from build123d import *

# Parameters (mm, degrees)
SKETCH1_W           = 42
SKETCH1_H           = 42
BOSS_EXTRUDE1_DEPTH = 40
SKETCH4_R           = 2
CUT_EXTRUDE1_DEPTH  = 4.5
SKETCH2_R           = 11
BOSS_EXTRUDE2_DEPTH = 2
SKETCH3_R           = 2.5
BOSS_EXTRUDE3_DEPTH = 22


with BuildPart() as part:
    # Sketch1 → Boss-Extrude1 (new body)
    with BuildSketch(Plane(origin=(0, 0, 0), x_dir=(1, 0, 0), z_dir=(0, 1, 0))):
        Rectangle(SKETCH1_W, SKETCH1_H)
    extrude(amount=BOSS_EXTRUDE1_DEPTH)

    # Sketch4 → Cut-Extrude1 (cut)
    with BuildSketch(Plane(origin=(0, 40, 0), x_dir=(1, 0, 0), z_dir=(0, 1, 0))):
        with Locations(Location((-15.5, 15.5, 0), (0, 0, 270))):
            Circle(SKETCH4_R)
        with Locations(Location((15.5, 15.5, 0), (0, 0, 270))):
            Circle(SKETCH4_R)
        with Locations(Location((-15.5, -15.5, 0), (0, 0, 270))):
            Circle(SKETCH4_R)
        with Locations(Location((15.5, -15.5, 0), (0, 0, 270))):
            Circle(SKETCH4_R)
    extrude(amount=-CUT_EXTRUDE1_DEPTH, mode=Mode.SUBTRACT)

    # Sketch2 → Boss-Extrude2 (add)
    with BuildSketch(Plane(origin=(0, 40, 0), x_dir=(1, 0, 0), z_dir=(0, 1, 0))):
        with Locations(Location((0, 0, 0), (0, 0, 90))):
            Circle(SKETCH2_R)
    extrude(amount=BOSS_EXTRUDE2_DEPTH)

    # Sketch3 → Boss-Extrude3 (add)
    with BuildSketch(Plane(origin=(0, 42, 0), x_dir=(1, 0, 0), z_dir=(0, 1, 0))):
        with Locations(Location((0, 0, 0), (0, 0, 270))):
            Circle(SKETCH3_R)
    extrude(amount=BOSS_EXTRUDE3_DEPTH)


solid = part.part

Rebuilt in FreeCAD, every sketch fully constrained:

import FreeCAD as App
import Part
import Sketcher
Q = App.Units.Quantity

doc = App.newDocument("Part")
body = doc.addObject("PartDesign::Body", "Body")

sketch1 = doc.addObject("Sketcher::SketchObject", "Sketch")
body.addObject(sketch1)
sketch1.AttachmentSupport = (doc.XZ_Plane, [""])
sketch1.MapMode = "FlatFace"
sketch1.addGeometry(Part.LineSegment(App.Vector(-21, -21, 0), App.Vector(-21, 21, 0)), False)
sketch1.addGeometry(Part.LineSegment(App.Vector(-21, 21, 0), App.Vector(21, 21, 0)), False)
sketch1.addGeometry(Part.LineSegment(App.Vector(21, 21, 0), App.Vector(21, -21, 0)), False)
sketch1.addGeometry(Part.LineSegment(App.Vector(21, -21, 0), App.Vector(-21, -21, 0)), False)
sketch1.addConstraint(Sketcher.Constraint("Coincident", 0, 2, 1, 1))
sketch1.addConstraint(Sketcher.Constraint("Coincident", 1, 2, 2, 1))
sketch1.addConstraint(Sketcher.Constraint("Coincident", 2, 2, 3, 1))
sketch1.addConstraint(Sketcher.Constraint("Coincident", 3, 2, 0, 1))
sketch1.addConstraint(Sketcher.Constraint("Vertical", 0))
sketch1.addConstraint(Sketcher.Constraint("Horizontal", 1))
sketch1.addConstraint(Sketcher.Constraint("Vertical", 2))
sketch1.addConstraint(Sketcher.Constraint("Horizontal", 3))
sketch1.addConstraint(Sketcher.Constraint("Symmetric", 0, 2, 2, 2, -1, 1))
sketch1.addConstraint(Sketcher.Constraint("Equal", 3, 0))
sketch1.addConstraint(Sketcher.Constraint("DistanceX", 1, 1, 1, 2, Q("42 mm")))
pad1 = doc.addObject("PartDesign::Pad", "Pad")
body.addObject(pad1)
pad1.Profile = sketch1
pad1.Length = 40
pad1.Reversed = True

sketch2 = doc.addObject("Sketcher::SketchObject", "Sketch001")
body.addObject(sketch2)
sketch2.AttachmentSupport = (doc.XZ_Plane, [""])
sketch2.MapMode = "FlatFace"
sketch2.AttachmentOffset = App.Placement(App.Vector(0, 0, -40), App.Rotation())
sketch2.addGeometry(Part.Circle(App.Vector(-15.5, -15.5, 0), App.Vector(0, 0, 1), 2), False)
sketch2.addGeometry(Part.Circle(App.Vector(15.5, -15.5, 0), App.Vector(0, 0, 1), 2), False)
sketch2.addGeometry(Part.Circle(App.Vector(-15.5, 15.5, 0), App.Vector(0, 0, 1), 2), False)
sketch2.addGeometry(Part.Circle(App.Vector(15.5, 15.5, 0), App.Vector(0, 0, 1), 2), False)
sketch2.addConstraint(Sketcher.Constraint("Equal", 0, 1))
sketch2.addConstraint(Sketcher.Constraint("Equal", 1, 2))
sketch2.addConstraint(Sketcher.Constraint("Equal", 2, 3))
sketch2.addConstraint(Sketcher.Constraint("Symmetric", 1, 3, 2, 3, -1, 1))
sketch2.addConstraint(Sketcher.Constraint("Symmetric", 0, 3, 3, 3, -1, 1))
sketch2.addConstraint(Sketcher.Constraint("Symmetric", 0, 3, 1, 3, -2))
sketch2.addConstraint(Sketcher.Constraint("Diameter", 0, Q("4 mm")))
sketch2.addConstraint(Sketcher.Constraint("DistanceX", 0, 3, 1, 3, Q("31 mm")))
sketch2.addConstraint(Sketcher.Constraint("DistanceY", 0, 3, 2, 3, Q("31 mm")))
pocket1 = doc.addObject("PartDesign::Pocket", "Pocket")
body.addObject(pocket1)
pocket1.Profile = sketch2
pocket1.Length = 4.5
pocket1.Reversed = True

sketch3 = doc.addObject("Sketcher::SketchObject", "Sketch002")
body.addObject(sketch3)
sketch3.AttachmentSupport = (doc.XZ_Plane, [""])
sketch3.MapMode = "FlatFace"
sketch3.AttachmentOffset = App.Placement(App.Vector(0, 0, -40), App.Rotation())
sketch3.addGeometry(Part.Circle(App.Vector(0, 0, 0), App.Vector(0, 0, 1), 11), False)
sketch3.addConstraint(Sketcher.Constraint("Coincident", 0, 3, -1, 1))
sketch3.addConstraint(Sketcher.Constraint("Diameter", 0, Q("22 mm")))
pad2 = doc.addObject("PartDesign::Pad", "Pad001")
body.addObject(pad2)
pad2.Profile = sketch3
pad2.Length = 2
pad2.Reversed = True

sketch4 = doc.addObject("Sketcher::SketchObject", "Sketch003")
body.addObject(sketch4)
sketch4.AttachmentSupport = (doc.XZ_Plane, [""])
sketch4.MapMode = "FlatFace"
sketch4.AttachmentOffset = App.Placement(App.Vector(0, 0, -42), App.Rotation())
sketch4.addGeometry(Part.Circle(App.Vector(0, 0, 0), App.Vector(0, 0, 1), 2.5), False)
sketch4.addConstraint(Sketcher.Constraint("Coincident", 0, 3, -1, 1))
sketch4.addConstraint(Sketcher.Constraint("Diameter", 0, Q("5 mm")))
pad3 = doc.addObject("PartDesign::Pad", "Pad002")
body.addObject(pad3)
pad3.Profile = sketch4
pad3.Length = 22
pad3.Reversed = True

doc.recompute()
